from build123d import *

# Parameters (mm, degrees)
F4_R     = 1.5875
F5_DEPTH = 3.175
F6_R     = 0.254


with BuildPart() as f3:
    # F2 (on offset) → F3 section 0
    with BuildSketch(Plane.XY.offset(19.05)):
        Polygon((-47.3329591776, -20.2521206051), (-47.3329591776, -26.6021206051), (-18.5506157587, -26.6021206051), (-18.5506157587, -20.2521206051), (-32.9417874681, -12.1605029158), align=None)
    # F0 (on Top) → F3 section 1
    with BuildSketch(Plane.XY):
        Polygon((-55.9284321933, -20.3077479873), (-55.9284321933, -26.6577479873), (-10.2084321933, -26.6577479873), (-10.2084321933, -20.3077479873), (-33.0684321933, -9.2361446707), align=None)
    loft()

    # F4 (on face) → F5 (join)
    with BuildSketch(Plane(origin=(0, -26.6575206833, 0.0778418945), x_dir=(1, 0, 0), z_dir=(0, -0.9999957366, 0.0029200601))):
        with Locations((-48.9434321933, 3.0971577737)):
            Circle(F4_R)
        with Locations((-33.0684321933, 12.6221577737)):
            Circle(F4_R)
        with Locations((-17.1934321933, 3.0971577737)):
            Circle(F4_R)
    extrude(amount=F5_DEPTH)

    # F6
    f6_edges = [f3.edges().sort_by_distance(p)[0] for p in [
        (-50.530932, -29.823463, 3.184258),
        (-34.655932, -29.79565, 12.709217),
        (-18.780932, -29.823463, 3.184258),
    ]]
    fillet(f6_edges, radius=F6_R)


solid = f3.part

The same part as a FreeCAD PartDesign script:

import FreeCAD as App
import Part
import Sketcher

V = App.Vector
Q = App.Units.Quantity


def edges_at(feature, points):
    """Names of the edges that pass closest to the given points."""
    edges = feature.Shape.Edges
    near = lambda p: min(range(len(edges)), key=lambda i: edges[i].distToShape(Part.Vertex(*p))[0])
    return sorted({f"Edge{near(p) + 1}" for p in points})


def add_polygon(sketch, points):
    """Adds a closed chain of lines whose ends are joined by coincident constraints."""
    first, n = sketch.GeometryCount, len(points)
    for a, b in zip(points, points[1:] + points[:1]):
        sketch.addGeometry(Part.LineSegment(App.Vector(*a, 0), App.Vector(*b, 0)), False)
    for i in range(n):
        sketch.addConstraint(Sketcher.Constraint("Coincident", first + i, 2, first + (i + 1) % n, 1))

doc = App.newDocument("Part")
body = doc.addObject("PartDesign::Body", "Body")

# Sketch on XY plane
sketch1 = doc.addObject("Sketcher::SketchObject", "Sketch")
body.addObject(sketch1)
sketch1.AttachmentSupport = (doc.XY_Plane, [""])
sketch1.MapMode = "FlatFace"
sketch1.AttachmentOffset = App.Placement(V(0, 0, 0.75 * 25.4), App.Rotation())
add_polygon(sketch1, [(-47.332959, -20.252121), (-47.332959, -26.602121), (-18.550616, -26.602121), (-18.550616, -20.252121), (-32.941787, -12.160503)])  # lines 0-4
sketch1.addConstraint([
    Sketcher.Constraint("Vertical", 0),
    Sketcher.Constraint("Horizontal", 1),
    Sketcher.Constraint("Vertical", 2),
    Sketcher.Constraint("Horizontal", 2, 2, 4, 2),
    Sketcher.Constraint("Equal", 3, 4),
    Sketcher.Constraint("DistanceY", 0, 2, 0, 1, Q("0.25 in")),
    Sketcher.Constraint("Distance", 3, Q("0.65 in")),
    Sketcher.Constraint("DistanceX", 1, 1, 1, 2, 28.782343),
    Sketcher.Constraint("DistanceX", 0, 2, -1, 1, 47.332959),
    Sketcher.Constraint("DistanceY", 0, 2, -1, 1, 26.602121),
])

# Sketch on XY plane
sketch2 = doc.addObject("Sketcher::SketchObject", "Sketch001")
body.addObject(sketch2)
sketch2.AttachmentSupport = (doc.XY_Plane, [""])
sketch2.MapMode = "FlatFace"
add_polygon(sketch2, [(-55.928432, -20.307748), (-55.928432, -26.657748), (-10.208432, -26.657748), (-10.208432, -20.307748), (-33.068432, -9.236145)])  # lines 0-4
sketch2.addConstraint([
    Sketcher.Constraint("Vertical", 0),
    Sketcher.Constraint("Horizontal", 1),
    Sketcher.Constraint("Vertical", 2),
    Sketcher.Constraint("Horizontal", 2, 2, 4, 2),
    Sketcher.Constraint("Equal", 3, 4),
    Sketcher.Constraint("Distance", 3, Q("1 in")),
    Sketcher.Constraint("DistanceX", 1, 1, 1, 2, Q("1.8 in")),
    Sketcher.Constraint("DistanceY", 0, 2, 0, 1, Q("0.25 in")),
    Sketcher.Constraint("DistanceX", 0, 2, -1, 1, 55.928432),
    Sketcher.Constraint("DistanceY", 0, 2, -1, 1, 26.657748),
])

additiveloft = doc.addObject("PartDesign::AdditiveLoft", "AdditiveLoft")
body.addObject(additiveloft)
additiveloft.Profile = sketch1
additiveloft.Sections = [sketch2]

# Sketch on an angled plane
sketch3 = doc.addObject("Sketcher::SketchObject", "Sketch002")
body.addObject(sketch3)
sketch3.Placement = App.Placement(V(0, -26.657521, 0.077842), App.Rotation(V(1, 0, 0), V(0, 0.00292006, 0.999995737), V(0, -0.999995737, 0.00292006), "ZXY"))
sketch3.addGeometry([
    Part.Circle(V(-48.943432, 3.097158, 0), V(0, 0, 1), 1.5875),
    Part.Circle(V(-33.068432, 12.622158, 0), V(0, 0, 1), 1.5875),
    Part.Circle(V(-17.193432, 3.097158, 0), V(0, 0, 1), 1.5875),
], False)
sketch3.addConstraint([
    Sketcher.Constraint("Equal", 0, 1),
    Sketcher.Constraint("Equal", 1, 2),
    Sketcher.Constraint("Horizontal", 0, 3, 2, 3),
    Sketcher.Constraint("Diameter", 0, Q("0.125 in")),
    Sketcher.Constraint("DistanceX", 0, 3, 2, 3, Q("1.25 in")),
    Sketcher.Constraint("DistanceX", 0, 3, 1, 3, Q("0.625 in")),
    Sketcher.Constraint("DistanceY", 0, 3, 1, 3, Q("0.375 in")),
    Sketcher.Constraint("DistanceX", 0, 3, -1, 1, 48.943432),
    Sketcher.Constraint("DistanceY", -1, 1, 0, 3, 3.097158),
])
pad1 = doc.addObject("PartDesign::Pad", "Pad")
body.addObject(pad1)
pad1.Profile = sketch3
pad1.Length = Q("0.125 in")
doc.recompute()

fillet = doc.addObject("PartDesign::Fillet", "Fillet")
body.addObject(fillet)
fillet.Base = (pad1, edges_at(pad1, [(-50.531, -29.823, 3.184), (-34.656, -29.796, 12.709), (-18.781, -29.823, 3.184)]))
fillet.Radius = Q("0.01 in")

doc.recompute()
